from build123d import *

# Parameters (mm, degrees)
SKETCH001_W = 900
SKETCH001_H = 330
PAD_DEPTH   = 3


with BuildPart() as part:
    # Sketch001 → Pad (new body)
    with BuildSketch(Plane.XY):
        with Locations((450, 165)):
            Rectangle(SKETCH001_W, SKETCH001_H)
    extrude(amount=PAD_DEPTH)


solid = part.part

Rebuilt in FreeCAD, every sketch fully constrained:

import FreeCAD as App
import Part
import Sketcher

V = App.Vector


def add_polygon(sketch, points):
    """Adds a closed chain of lines whose ends are joined by coincident constraints."""
    first, n = sketch.GeometryCount, len(points)
    for a, b in zip(points, points[1:] + points[:1]):
        sketch.addGeometry(Part.LineSegment(App.Vector(*a, 0), App.Vector(*b, 0)), False)
    for i in range(n):
        sketch.addConstraint(Sketcher.Constraint("Coincident", first + i, 2, first + (i + 1) % n, 1))

doc = App.newDocument("Part")
body = doc.addObject("PartDesign::Body", "Body")

# Sketch on XY plane
sketch1 = doc.addObject("Sketcher::SketchObject", "Sketch")
body.addObject(sketch1)
sketch1.AttachmentSupport = (doc.XY_Plane, [""])
sketch1.MapMode = "FlatFace"
add_polygon(sketch1, [(0, 330), (0, 0), (900, 0), (900, 330)])  # lines 0-3
sketch1.addConstraint([
    Sketcher.Constraint("Vertical", 0),
    Sketcher.Constraint("Horizontal", 1),
    Sketcher.Constraint("Vertical", 2),
    Sketcher.Constraint("Horizontal", 3),
    Sketcher.Constraint("Coincident", 0, 2, -1, 1),
    Sketcher.Constraint("DistanceX", 1, 1, 1, 2, 900.0),
    Sketcher.Constraint("DistanceY", 0, 2, 0, 1, 330.0),
])
pad1 = doc.addObject("PartDesign::Pad", "Pad")
body.addObject(pad1)
pad1.Profile = sketch1
pad1.Length = 3

doc.recompute()
